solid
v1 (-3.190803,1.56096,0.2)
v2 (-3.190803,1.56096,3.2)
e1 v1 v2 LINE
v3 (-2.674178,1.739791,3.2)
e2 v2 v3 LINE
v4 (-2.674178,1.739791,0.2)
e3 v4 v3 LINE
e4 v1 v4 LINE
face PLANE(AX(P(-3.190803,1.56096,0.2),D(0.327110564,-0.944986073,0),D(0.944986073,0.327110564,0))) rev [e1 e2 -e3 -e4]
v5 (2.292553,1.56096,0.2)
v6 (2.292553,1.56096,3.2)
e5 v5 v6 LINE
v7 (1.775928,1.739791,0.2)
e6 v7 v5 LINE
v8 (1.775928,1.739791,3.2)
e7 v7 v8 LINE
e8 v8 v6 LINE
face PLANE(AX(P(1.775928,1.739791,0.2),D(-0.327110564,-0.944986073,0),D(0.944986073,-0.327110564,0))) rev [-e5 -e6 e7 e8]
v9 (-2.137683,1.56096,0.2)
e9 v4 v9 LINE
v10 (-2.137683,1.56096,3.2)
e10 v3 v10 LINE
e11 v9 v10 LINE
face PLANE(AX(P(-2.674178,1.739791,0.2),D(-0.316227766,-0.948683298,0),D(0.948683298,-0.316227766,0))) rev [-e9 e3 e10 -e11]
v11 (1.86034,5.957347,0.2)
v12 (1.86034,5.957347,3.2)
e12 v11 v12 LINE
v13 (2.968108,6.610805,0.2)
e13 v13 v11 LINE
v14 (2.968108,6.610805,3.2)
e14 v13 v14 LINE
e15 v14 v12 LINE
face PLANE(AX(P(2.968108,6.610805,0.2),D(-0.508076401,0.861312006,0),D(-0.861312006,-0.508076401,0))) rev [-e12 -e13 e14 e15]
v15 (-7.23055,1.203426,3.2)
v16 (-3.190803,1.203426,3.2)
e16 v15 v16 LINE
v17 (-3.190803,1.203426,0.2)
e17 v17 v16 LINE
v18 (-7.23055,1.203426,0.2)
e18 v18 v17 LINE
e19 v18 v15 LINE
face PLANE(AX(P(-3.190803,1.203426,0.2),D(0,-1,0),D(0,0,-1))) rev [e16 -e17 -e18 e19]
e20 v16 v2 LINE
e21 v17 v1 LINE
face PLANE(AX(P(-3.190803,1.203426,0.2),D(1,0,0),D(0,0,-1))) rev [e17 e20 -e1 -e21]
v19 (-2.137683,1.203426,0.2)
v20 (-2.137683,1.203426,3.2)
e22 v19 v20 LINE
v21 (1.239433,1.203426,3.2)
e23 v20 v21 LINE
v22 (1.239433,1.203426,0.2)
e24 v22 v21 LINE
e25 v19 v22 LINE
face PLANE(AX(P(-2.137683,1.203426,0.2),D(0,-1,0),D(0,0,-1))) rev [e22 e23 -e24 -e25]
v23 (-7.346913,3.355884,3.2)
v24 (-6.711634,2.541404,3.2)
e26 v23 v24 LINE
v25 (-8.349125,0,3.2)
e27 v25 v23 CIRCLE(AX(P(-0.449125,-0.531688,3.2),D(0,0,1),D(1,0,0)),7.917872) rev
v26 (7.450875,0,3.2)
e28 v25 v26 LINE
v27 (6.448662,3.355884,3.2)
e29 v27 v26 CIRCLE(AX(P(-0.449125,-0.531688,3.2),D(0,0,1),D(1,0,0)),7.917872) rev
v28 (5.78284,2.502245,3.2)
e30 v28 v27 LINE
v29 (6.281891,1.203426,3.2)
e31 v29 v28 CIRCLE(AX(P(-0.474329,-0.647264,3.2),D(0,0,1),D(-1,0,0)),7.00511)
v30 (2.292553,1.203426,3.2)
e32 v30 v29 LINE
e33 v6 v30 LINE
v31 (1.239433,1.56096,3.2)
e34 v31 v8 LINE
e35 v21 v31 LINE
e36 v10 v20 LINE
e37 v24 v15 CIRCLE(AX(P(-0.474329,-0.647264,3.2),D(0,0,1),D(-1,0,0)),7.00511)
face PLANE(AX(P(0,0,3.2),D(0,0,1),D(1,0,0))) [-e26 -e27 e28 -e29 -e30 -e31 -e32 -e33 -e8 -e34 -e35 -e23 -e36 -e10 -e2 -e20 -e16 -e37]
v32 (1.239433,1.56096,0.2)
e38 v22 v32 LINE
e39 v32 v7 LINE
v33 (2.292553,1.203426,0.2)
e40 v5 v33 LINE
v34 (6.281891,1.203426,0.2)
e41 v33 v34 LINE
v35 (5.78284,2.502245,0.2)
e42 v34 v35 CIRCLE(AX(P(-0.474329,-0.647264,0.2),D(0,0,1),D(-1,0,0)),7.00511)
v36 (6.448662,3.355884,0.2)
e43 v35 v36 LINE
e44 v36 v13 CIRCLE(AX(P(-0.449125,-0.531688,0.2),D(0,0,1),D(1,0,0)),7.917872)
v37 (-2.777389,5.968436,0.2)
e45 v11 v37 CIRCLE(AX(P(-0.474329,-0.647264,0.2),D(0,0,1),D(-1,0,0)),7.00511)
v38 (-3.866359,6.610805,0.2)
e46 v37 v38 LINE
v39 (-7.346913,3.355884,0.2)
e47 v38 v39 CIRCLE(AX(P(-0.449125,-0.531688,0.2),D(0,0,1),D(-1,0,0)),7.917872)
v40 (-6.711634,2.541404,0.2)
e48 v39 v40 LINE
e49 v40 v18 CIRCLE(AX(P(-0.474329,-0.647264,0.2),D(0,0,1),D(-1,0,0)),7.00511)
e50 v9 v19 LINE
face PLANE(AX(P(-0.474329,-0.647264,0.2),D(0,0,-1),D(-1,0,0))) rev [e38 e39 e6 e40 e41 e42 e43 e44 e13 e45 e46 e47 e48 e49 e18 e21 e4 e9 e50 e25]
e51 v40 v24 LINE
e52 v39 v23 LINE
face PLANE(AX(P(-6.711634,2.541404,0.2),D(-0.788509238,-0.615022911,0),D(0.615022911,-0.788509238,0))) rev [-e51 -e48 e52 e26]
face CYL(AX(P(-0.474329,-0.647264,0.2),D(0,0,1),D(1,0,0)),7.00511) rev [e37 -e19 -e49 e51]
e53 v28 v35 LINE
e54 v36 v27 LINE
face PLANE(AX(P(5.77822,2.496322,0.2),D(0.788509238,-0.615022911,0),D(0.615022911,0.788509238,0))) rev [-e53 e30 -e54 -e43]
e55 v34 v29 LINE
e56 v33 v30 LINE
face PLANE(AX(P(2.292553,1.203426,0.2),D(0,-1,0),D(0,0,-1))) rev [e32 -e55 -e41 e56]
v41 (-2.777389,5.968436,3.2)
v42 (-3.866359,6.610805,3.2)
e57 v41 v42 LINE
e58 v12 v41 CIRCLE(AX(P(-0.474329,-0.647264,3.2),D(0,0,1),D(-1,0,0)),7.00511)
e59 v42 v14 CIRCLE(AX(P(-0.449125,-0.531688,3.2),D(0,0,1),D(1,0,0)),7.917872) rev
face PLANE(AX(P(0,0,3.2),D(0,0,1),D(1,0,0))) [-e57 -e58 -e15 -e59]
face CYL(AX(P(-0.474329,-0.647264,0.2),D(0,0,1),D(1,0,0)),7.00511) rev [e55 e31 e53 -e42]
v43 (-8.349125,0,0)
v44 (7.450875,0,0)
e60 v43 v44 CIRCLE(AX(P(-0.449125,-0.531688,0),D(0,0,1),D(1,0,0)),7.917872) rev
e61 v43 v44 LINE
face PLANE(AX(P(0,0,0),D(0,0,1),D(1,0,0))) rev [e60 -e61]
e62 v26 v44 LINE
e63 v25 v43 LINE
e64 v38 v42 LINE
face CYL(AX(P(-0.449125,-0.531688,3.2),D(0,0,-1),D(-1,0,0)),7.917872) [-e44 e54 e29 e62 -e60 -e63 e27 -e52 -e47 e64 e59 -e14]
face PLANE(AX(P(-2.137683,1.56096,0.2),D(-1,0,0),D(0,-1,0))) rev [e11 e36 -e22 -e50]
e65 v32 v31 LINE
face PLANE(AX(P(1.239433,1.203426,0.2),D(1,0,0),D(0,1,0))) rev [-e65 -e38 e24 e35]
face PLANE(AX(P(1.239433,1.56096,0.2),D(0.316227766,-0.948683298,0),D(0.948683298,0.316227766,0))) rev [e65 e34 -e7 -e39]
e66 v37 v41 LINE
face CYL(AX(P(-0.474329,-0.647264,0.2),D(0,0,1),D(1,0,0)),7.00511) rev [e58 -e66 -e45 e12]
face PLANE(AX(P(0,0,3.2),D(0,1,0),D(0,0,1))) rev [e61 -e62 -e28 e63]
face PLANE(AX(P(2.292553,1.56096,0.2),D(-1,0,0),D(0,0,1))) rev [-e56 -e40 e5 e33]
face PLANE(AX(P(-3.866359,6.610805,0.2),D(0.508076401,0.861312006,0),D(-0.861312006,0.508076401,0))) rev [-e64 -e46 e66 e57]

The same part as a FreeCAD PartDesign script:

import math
import FreeCAD as App
import Part
import Sketcher
from FreeCAD import Vector
Q = App.Units.Quantity

doc = App.newDocument("Part")
params = doc.addObject("Spreadsheet::Sheet", "Params")
for row, (alias, value) in enumerate([
    ("sketch1_width", "15.8 mm"),
    ("pad1_length", "3.2 mm"),
    ("pocket1_length", "3 mm"),
    ("pocket2_length", "3 mm"),
], start=1):
    params.set(f"A{row}", alias)
    params.set(f"B{row}", "=" + value)
    params.setAlias(f"B{row}", alias)

body = doc.addObject("PartDesign::Body", "Body")

sketch1 = body.newObject("Sketcher::SketchObject", "Sketch")
sketch1.AttachmentSupport = (doc.getObject("XY_Plane"), [""])
sketch1.MapMode = "FlatFace"
sketch1.addGeometry([
    Part.LineSegment(Vector(-8, 0, 0), Vector(7, 0, 0)),
    Part.ArcOfCircle(Part.Circle(Vector(0, -1, 0), Vector(0, 0, 1), 8), math.radians(4), math.radians(176)),
], False)
sketch1.addConstraint([
    Sketcher.Constraint("Coincident", 0, 1, 1, 2),
    Sketcher.Constraint("Coincident", 1, 1, 0, 2),
    Sketcher.Constraint("Horizontal", 0),
    Sketcher.Constraint("PointOnObject", 0, 1, -1),
    Sketcher.Constraint("DistanceX", 0, 1, 0, 2, Q("15.8 mm")),
    Sketcher.Constraint("Radius", 1, Q("7.917872 mm")),
    Sketcher.Constraint("DistanceX", 1, 3, -1, 1, Q("0.449125 mm")),
])
sketch1.setExpression("Constraints[4]", "Params.sketch1_width")
pad1 = body.newObject("PartDesign::Pad", "Pad")
pad1.Profile = sketch1
pad1.setExpression("Length", "Params.pad1_length")

sketch2 = body.newObject("Sketcher::SketchObject", "Sketch001")
sketch2.AttachmentSupport = (doc.getObject("XY_Plane"), [""])
sketch2.MapMode = "FlatFace"
sketch2.AttachmentOffset = App.Placement(Vector(0, 0, 3.2), App.Rotation())
sketch2.addGeometry([
    Part.LineSegment(Vector(-3.19, 1.2, 0), Vector(-3.19, 1.56, 0)),
    Part.LineSegment(Vector(-3.19, 1.56, 0), Vector(-2.67, 1.74, 0)),
    Part.LineSegment(Vector(-2.67, 1.74, 0), Vector(-2.14, 1.56, 0)),
    Part.LineSegment(Vector(-2.14, 1.56, 0), Vector(-2.14, 1.2, 0)),
    Part.LineSegment(Vector(-2.14, 1.2, 0), Vector(1.24, 1.2, 0)),
    Part.LineSegment(Vector(1.24, 1.2, 0), Vector(1.24, 1.56, 0)),
    Part.LineSegment(Vector(1.24, 1.56, 0), Vector(1.78, 1.74, 0)),
    Part.LineSegment(Vector(1.78, 1.74, 0), Vector(2.29, 1.56, 0)),
    Part.LineSegment(Vector(2.29, 1.56, 0), Vector(2.29, 1.2, 0)),
    Part.LineSegment(Vector(2.29, 1.2, 0), Vector(6.28, 1.2, 0)),
    Part.ArcOfCircle(Part.Circle(Vector(-0.47, -0.65, 0), Vector(0, 0, 1), 7.01), math.radians(15), math.radians(165)),
    Part.LineSegment(Vector(-7.23, 1.2, 0), Vector(-3.19, 1.2, 0)),
], False)
sketch2.addConstraint([
    Sketcher.Constraint("Coincident", 0, 2, 1, 1),
    Sketcher.Constraint("Coincident", 1, 2, 2, 1),
    Sketcher.Constraint("Coincident", 2, 2, 3, 1),
    Sketcher.Constraint("Coincident", 3, 2, 4, 1),
    Sketcher.Constraint("Coincident", 4, 2, 5, 1),
    Sketcher.Constraint("Coincident", 5, 2, 6, 1),
    Sketcher.Constraint("Coincident", 6, 2, 7, 1),
    Sketcher.Constraint("Coincident", 7, 2, 8, 1),
    Sketcher.Constraint("Coincident", 8, 2, 9, 1),
    Sketcher.Constraint("Coincident", 9, 2, 10, 1),
    Sketcher.Constraint("Coincident", 10, 2, 11, 1),
    Sketcher.Constraint("Coincident", 11, 2, 0, 1),
    Sketcher.Constraint("Vertical", 0),
    Sketcher.Constraint("Vertical", 3),
    Sketcher.Constraint("Horizontal", 4),
    Sketcher.Constraint("Vertical", 5),
    Sketcher.Constraint("Vertical", 8),
    Sketcher.Constraint("Horizontal", 9),
    Sketcher.Constraint("Horizontal", 11),
    Sketcher.Constraint("Horizontal", 0, 2, 2, 2),
    Sketcher.Constraint("Horizontal", 2, 2, 5, 2),
    Sketcher.Constraint("Horizontal", 1, 2, 6, 2),
    Sketcher.Constraint("Horizontal", 5, 2, 7, 2),
    Sketcher.Constraint("Horizontal", 4, 2, 8, 2),
    Sketcher.Constraint("Horizontal", 9, 2, 10, 2),
    Sketcher.Constraint("Equal", 2, 6),
    Sketcher.Constraint("Equal", 1, 7),
    Sketcher.Constraint("Radius", 10, Q("7.00511 mm")),
    Sketcher.Constraint("Distance", 1, Q("0.546701 mm")),
    Sketcher.Constraint("DistanceX", 9, 1, 9, 2, Q("3.989339 mm")),
    Sketcher.Constraint("DistanceX", 4, 1, 4, 2, Q("3.377116 mm")),
    Sketcher.Constraint("DistanceX", 11, 1, 11, 2, Q("4.039747 mm")),
    Sketcher.Constraint("DistanceY", 0, 1, 0, 2, Q("0.357534 mm")),
    Sketcher.Constraint("DistanceX", 10, 3, -1, 1, Q("0.474329 mm")),
    Sketcher.Constraint("DistanceY", -1, 1, 0, 2, Q("1.56096 mm")),
    Sketcher.Constraint("DistanceX", 1, 2, -1, 1, Q("2.674178 mm")),
    Sketcher.Constraint("DistanceY", -1, 1, 1, 2, Q("1.739791 mm")),
])
pocket1 = body.newObject("PartDesign::Pocket", "Pocket")
pocket1.Profile = sketch2
pocket1.setExpression("Length", "Params.pocket1_length")

sketch3 = body.newObject("Sketcher::SketchObject", "Sketch002")
sketch3.AttachmentSupport = (doc.getObject("XY_Plane"), [""])
sketch3.MapMode = "FlatFace"
sketch3.AttachmentOffset = App.Placement(Vector(0, 0, 0.2), App.Rotation())
sketch3.addGeometry([
    Part.LineSegment(Vector(-2.8, 6, 0), Vector(-3.9, 6.6, 0)),
    Part.ArcOfCircle(Part.Circle(Vector(-0.4, -0.5, 0), Vector(0, 0, 1), 7.9), math.radians(116), math.radians(151)),
    Part.LineSegment(Vector(-7.3, 3.4, 0), Vector(-6.7, 2.5, 0)),
    Part.ArcOfCircle(Part.Circle(Vector(-0.4, -0.7, 0), Vector(0, 0, 1), 7.1), math.radians(109), math.radians(153)),
    Part.LineSegment(Vector(5.8, 2.5, 0), Vector(6.4, 3.4, 0)),
    Part.ArcOfCircle(Part.Circle(Vector(-0.4, -0.5, 0), Vector(0, 0, 1), 7.9), math.radians(29), math.radians(64)),
    Part.LineSegment(Vector(3, 6.6, 0), Vector(1.9, 6, 0)),
    Part.ArcOfCircle(Part.Circle(Vector(-0.4, -0.6, 0), Vector(0, 0, 1), 6.9), math.radians(26), math.radians(71)),
], False)
sketch3.addConstraint([
    Sketcher.Constraint("Coincident", 0, 2, 1, 1),
    Sketcher.Constraint("Coincident", 1, 2, 2, 1),
    Sketcher.Constraint("Coincident", 2, 2, 3, 2),
    Sketcher.Constraint("Coincident", 3, 1, 0, 1),
    Sketcher.Constraint("Coincident", 4, 2, 5, 1),
    Sketcher.Constraint("Coincident", 5, 2, 6, 1),
    Sketcher.Constraint("Coincident", 6, 2, 7, 2),
    Sketcher.Constraint("Coincident", 7, 1, 4, 1),
    Sketcher.Constraint("Coincident", 5, 3, 1, 3),
    Sketcher.Constraint("Equal", 1, 5),
    Sketcher.Constraint("Horizontal", 1, 2, 4, 2),
    Sketcher.Constraint("Horizontal", 0, 2, 5, 2),
    Sketcher.Constraint("Radius", 1, Q("7.917872 mm")),
    Sketcher.Constraint("Radius", 3, Q("7.088733 mm")),
    Sketcher.Constraint("Radius", 7, Q("6.926634 mm")),
    Sketcher.Constraint("DistanceY", 2, 2, 0, 2, Q("4.069401 mm")),
    Sketcher.Constraint("DistanceX", 6, 2, 4, 2, Q("4.593701 mm")),
    Sketcher.Constraint("Distance", 4, Q("1.09011 mm")),
    Sketcher.Constraint("DistanceY", 1, 3, -1, 1, Q("0.531688 mm")),
    Sketcher.Constraint("DistanceY", 3, 3, -1, 1, Q("0.715141 mm")),
    Sketcher.Constraint("DistanceY", 7, 3, -1, 1, Q("0.58665 mm")),
    Sketcher.Constraint("DistanceX", 0, 2, -1, 1, Q("3.866359 mm")),
    Sketcher.Constraint("DistanceX", 3, 1, -1, 1, Q("2.777389 mm")),
    Sketcher.Constraint("DistanceX", -1, 1, 5, 2, Q("2.968108 mm")),
    Sketcher.Constraint("DistanceX", -1, 1, 6, 2, Q("1.854961 mm")),
    Sketcher.Constraint("DistanceX", -1, 1, 7, 1, Q("5.77822 mm")),
    Sketcher.Constraint("DistanceX", 1, 2, 3, 3, Q("6.93171 mm")),
])
pocket2 = body.newObject("PartDesign::Pocket", "Pocket001")
pocket2.Profile = sketch3
pocket2.setExpression("Length", "Params.pocket2_length")
pocket2.Reversed = True

doc.recompute()
